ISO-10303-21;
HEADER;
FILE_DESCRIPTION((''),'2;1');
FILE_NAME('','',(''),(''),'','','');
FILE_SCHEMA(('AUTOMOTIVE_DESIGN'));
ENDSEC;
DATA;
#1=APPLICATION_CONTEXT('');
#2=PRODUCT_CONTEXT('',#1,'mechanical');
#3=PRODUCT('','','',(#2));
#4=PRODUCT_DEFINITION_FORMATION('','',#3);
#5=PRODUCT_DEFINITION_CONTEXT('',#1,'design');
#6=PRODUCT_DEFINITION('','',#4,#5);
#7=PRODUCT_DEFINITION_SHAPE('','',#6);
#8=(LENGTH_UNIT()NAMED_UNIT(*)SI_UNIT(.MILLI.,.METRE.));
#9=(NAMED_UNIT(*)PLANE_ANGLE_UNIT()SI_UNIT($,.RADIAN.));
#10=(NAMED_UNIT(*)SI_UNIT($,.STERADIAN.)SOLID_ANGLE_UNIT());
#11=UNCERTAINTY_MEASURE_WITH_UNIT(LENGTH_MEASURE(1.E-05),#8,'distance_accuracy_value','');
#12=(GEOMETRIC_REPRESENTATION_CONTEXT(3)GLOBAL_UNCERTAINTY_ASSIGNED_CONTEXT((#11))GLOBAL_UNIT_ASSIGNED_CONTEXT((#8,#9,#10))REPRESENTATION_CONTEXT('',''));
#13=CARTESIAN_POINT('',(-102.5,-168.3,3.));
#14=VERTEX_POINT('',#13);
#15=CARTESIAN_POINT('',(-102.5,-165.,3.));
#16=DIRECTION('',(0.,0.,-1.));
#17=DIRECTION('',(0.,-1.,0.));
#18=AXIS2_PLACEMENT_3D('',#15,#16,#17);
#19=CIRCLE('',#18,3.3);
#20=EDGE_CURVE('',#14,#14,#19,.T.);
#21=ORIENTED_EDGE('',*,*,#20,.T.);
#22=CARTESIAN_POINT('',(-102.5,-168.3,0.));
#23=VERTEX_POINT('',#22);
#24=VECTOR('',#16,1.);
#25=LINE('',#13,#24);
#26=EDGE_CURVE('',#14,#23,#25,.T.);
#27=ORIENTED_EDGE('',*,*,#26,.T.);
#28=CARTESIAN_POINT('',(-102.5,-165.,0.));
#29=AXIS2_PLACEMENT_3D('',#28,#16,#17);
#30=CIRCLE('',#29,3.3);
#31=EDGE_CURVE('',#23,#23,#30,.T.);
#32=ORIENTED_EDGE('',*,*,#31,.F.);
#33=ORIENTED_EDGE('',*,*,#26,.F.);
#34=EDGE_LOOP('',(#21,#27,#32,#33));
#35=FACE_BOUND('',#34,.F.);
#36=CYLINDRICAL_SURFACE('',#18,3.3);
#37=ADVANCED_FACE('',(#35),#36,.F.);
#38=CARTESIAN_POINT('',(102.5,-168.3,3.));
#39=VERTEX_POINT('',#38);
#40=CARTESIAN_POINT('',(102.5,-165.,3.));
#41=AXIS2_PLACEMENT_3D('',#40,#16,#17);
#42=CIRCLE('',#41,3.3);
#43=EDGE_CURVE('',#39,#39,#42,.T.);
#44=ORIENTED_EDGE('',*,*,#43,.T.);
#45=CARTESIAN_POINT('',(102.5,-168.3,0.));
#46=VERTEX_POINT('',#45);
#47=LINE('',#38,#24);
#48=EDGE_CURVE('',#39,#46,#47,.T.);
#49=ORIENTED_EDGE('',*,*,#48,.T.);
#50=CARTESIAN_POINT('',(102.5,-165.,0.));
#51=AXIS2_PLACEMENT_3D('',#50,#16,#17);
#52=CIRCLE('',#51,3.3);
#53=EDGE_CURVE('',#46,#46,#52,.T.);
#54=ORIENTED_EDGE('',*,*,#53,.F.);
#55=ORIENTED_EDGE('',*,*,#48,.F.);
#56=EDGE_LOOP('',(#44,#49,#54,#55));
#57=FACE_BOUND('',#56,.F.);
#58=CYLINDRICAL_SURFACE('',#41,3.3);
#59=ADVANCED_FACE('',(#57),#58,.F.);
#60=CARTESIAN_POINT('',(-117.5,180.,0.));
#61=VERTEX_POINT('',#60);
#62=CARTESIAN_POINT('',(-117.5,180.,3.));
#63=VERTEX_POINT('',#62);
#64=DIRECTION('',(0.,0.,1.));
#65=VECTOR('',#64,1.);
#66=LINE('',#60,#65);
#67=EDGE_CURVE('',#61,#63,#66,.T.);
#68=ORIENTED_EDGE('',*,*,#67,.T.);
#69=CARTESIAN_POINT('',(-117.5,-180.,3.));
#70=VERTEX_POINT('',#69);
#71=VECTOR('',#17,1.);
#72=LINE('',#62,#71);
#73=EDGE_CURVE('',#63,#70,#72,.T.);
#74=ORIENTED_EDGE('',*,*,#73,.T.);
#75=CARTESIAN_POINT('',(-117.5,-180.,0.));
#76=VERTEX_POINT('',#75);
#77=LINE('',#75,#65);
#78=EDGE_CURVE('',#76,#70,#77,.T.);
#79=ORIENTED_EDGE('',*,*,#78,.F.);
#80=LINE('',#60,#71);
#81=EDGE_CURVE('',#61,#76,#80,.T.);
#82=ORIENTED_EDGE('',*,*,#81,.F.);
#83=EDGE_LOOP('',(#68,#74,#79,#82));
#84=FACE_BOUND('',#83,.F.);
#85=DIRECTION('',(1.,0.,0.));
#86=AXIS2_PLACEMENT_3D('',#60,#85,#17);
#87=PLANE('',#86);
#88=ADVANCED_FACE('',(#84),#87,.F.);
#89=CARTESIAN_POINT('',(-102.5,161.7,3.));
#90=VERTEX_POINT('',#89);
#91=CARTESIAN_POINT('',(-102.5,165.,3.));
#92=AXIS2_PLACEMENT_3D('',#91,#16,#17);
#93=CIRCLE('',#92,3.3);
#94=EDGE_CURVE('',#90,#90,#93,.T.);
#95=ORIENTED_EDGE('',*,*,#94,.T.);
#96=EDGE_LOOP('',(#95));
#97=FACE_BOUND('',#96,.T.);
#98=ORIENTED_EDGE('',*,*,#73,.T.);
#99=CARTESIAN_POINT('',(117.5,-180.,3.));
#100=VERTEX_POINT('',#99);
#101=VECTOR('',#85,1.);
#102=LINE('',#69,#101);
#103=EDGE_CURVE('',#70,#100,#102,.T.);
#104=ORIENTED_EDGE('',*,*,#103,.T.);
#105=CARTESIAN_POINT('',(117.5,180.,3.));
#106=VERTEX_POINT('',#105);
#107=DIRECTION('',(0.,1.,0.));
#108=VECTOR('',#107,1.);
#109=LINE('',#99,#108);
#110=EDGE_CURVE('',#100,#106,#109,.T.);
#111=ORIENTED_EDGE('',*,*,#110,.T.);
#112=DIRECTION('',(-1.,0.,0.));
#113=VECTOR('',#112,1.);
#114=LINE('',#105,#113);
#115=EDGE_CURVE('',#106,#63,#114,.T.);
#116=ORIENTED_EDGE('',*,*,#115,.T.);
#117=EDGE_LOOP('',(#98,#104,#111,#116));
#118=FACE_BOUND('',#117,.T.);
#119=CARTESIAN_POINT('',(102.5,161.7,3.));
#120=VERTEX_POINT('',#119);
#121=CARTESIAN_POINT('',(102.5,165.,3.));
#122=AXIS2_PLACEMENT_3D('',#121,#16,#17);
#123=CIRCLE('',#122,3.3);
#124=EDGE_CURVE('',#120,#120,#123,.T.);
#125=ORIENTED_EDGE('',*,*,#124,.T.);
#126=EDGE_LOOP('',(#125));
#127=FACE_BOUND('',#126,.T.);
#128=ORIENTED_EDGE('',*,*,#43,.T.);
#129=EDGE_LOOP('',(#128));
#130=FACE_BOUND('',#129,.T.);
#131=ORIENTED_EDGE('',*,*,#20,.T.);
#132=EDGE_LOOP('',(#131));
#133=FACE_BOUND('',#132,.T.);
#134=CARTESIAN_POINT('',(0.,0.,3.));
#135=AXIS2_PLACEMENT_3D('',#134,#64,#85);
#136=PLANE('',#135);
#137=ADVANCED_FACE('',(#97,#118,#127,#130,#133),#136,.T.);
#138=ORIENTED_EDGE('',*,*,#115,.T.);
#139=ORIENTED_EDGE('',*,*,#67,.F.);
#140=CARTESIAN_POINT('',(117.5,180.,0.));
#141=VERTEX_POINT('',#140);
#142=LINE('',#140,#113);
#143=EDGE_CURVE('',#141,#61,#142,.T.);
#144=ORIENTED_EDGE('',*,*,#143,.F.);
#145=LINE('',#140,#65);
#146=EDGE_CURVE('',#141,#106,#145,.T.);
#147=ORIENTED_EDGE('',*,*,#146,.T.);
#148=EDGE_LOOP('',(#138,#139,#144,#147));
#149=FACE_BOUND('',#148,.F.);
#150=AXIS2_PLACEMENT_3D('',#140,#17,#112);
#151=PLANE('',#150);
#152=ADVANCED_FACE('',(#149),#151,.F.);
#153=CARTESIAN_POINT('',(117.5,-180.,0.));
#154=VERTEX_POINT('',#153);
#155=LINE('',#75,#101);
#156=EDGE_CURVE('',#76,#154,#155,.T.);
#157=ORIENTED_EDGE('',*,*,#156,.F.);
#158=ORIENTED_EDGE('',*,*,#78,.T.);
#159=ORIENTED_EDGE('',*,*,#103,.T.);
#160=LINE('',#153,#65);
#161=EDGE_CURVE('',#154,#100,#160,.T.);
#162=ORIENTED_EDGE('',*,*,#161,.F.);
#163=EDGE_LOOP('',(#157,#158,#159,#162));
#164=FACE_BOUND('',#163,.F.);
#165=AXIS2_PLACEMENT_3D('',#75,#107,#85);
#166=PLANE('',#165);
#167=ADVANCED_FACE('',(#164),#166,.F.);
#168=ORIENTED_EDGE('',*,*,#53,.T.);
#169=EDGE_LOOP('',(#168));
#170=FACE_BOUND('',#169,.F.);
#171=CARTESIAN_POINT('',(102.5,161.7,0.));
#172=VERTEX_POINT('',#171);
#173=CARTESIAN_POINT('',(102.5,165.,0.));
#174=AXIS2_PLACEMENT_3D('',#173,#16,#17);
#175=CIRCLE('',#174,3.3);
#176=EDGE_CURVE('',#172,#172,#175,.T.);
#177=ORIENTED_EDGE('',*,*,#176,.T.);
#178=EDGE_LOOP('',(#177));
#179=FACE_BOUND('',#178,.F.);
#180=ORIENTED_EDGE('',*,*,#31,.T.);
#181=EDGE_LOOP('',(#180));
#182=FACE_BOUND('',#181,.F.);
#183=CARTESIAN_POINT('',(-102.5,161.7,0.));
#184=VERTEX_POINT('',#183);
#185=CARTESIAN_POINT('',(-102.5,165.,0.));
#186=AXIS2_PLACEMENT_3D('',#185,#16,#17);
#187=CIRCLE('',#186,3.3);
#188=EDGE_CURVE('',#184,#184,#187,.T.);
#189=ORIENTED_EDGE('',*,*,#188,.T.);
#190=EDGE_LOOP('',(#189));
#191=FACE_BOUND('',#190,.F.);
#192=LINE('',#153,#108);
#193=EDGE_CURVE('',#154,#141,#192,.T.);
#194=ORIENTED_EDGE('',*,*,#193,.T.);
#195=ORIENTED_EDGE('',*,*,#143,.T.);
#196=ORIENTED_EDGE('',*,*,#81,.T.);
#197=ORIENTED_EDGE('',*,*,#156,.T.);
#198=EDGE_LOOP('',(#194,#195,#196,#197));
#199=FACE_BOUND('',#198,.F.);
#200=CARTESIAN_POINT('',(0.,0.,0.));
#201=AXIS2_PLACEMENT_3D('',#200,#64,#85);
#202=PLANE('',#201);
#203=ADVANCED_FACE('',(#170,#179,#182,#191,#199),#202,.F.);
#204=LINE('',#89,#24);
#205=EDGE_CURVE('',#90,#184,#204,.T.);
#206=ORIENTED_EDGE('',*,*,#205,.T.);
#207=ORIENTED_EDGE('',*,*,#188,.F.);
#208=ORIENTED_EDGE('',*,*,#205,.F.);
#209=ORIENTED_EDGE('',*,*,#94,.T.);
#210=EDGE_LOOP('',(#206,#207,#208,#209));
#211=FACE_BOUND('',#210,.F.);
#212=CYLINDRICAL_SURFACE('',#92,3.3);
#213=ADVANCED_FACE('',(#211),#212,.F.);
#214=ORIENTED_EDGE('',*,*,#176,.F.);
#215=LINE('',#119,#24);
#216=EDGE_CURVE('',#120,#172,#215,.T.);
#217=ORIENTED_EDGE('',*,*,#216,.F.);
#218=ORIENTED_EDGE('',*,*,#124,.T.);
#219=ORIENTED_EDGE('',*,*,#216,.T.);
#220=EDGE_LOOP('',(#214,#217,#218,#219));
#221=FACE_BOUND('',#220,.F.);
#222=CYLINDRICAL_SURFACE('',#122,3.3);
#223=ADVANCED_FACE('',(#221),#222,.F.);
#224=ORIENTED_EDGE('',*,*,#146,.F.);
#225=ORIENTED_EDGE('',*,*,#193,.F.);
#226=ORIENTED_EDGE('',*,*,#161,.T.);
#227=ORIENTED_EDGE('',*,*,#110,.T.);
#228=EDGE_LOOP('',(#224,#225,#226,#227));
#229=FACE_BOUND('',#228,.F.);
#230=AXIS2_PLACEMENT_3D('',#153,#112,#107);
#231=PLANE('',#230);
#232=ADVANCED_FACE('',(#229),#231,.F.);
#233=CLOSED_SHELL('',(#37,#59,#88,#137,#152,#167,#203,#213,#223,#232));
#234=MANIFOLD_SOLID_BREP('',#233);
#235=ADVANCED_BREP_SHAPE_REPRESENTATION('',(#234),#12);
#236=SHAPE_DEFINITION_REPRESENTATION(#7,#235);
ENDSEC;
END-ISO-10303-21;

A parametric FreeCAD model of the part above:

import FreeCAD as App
import Part
import Sketcher


def add_polygon(sketch, points):
    """Adds a closed chain of lines whose ends are joined by coincident constraints."""
    first, n = sketch.GeometryCount, len(points)
    for a, b in zip(points, points[1:] + points[:1]):
        sketch.addGeometry(Part.LineSegment(App.Vector(*a, 0), App.Vector(*b, 0)), False)
    for i in range(n):
        sketch.addConstraint(Sketcher.Constraint("Coincident", first + i, 2, first + (i + 1) % n, 1))

doc = App.newDocument("Part")
body = doc.addObject("PartDesign::Body", "Body")

# Sketch on XY plane
sketch1 = body.newObject("Sketcher::SketchObject", "Sketch")
sketch1.AttachmentSupport = (doc.getObject("XY_Plane"), [""])
sketch1.MapMode = "FlatFace"
add_polygon(sketch1, [(118, -180), (118, 180), (-118, 180), (-118, -180)])  # lines 0-3
sketch1.addConstraint([
    Sketcher.Constraint("Vertical", 0),
    Sketcher.Constraint("Horizontal", 1),
    Sketcher.Constraint("Vertical", 2),
    Sketcher.Constraint("Horizontal", 3),
    Sketcher.Constraint("Symmetric", 0, 2, 2, 2, -1, 1),
    Sketcher.Constraint("DistanceX", 1, 2, 1, 1, 235.0),
    Sketcher.Constraint("DistanceY", 0, 1, 0, 2, 360.0),
])
pad1 = body.newObject("PartDesign::Pad", "Pad")
pad1.Profile = sketch1
pad1.Length = 3

# Sketch on XY plane
sketch2 = body.newObject("Sketcher::SketchObject", "Sketch001")
sketch2.AttachmentSupport = (doc.getObject("XY_Plane"), [""])
sketch2.MapMode = "FlatFace"
sketch2.AttachmentOffset = App.Placement(App.Vector(0, 0, 3), App.Rotation())
sketch2.addGeometry([
    Part.Circle(App.Vector(-102.5, 165, 0), App.Vector(0, 0, 1), 3.3),
    Part.Circle(App.Vector(102.5, 165, 0), App.Vector(0, 0, 1), 3.3),
    Part.Circle(App.Vector(102.5, -165, 0), App.Vector(0, 0, 1), 3.3),
    Part.Circle(App.Vector(-102.5, -165, 0), App.Vector(0, 0, 1), 3.3),
], False)
sketch2.addConstraint([
    Sketcher.Constraint("Equal", 0, 1),
    Sketcher.Constraint("Equal", 1, 2),
    Sketcher.Constraint("Equal", 2, 3),
    Sketcher.Constraint("Symmetric", 0, 3, 2, 3, -1, 1),
    Sketcher.Constraint("Symmetric", 1, 3, 3, 3, -1, 1),
    Sketcher.Constraint("Symmetric", 0, 3, 1, 3, -2),
    Sketcher.Constraint("Diameter", 0, 6.6),
    Sketcher.Constraint("DistanceY", -1, 1, 0, 3, 165.0),
    Sketcher.Constraint("DistanceX", 0, 3, 1, 3, 205.0),
])
doc.recompute()
hole = body.newObject("PartDesign::Hole", "Hole")
hole.Profile = sketch2
hole.ThreadType = "None"
hole.Diameter = 6.6
hole.DepthType = "ThroughAll"

doc.recompute()
